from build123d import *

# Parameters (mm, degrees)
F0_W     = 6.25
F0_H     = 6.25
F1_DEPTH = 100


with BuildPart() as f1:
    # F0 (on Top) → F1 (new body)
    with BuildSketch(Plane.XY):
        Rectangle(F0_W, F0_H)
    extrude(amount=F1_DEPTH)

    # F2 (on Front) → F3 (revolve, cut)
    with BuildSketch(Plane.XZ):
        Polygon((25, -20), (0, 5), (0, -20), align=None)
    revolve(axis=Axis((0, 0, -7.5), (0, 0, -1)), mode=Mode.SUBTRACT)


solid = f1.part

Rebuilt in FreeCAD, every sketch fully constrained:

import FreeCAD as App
import Part
import Sketcher

V = App.Vector

doc = App.newDocument("Part")
body = doc.addObject("PartDesign::Body", "Body")

sketch1 = body.newObject("Sketcher::SketchObject", "Sketch")
sketch1.AttachmentSupport = (doc.getObject("XY_Plane"), [""])
sketch1.MapMode = "FlatFace"
sketch1.addGeometry([
    Part.LineSegment(V(-3, 3, 0), V(-3, -3, 0)),
    Part.LineSegment(V(-3, -3, 0), V(3, -3, 0)),
    Part.LineSegment(V(3, -3, 0), V(3, 3, 0)),
    Part.LineSegment(V(3, 3, 0), V(-3, 3, 0)),
], False)
sketch1.addConstraint([
    Sketcher.Constraint("Coincident", 0, 2, 1, 1),
    Sketcher.Constraint("Coincident", 1, 2, 2, 1),
    Sketcher.Constraint("Coincident", 2, 2, 3, 1),
    Sketcher.Constraint("Coincident", 3, 2, 0, 1),
    Sketcher.Constraint("Vertical", 0),
    Sketcher.Constraint("Horizontal", 1),
    Sketcher.Constraint("Vertical", 2),
    Sketcher.Constraint("Horizontal", 3),
    Sketcher.Constraint("Symmetric", 0, 2, 2, 2, -1, 1),
    Sketcher.Constraint("Equal", 3, 0),
    Sketcher.Constraint("DistanceX", 1, 1, 1, 2, 6.25),
])
pad1 = body.newObject("PartDesign::Pad", "Pad")
pad1.Profile = sketch1
pad1.Length = 100

sketch2 = body.newObject("Sketcher::SketchObject", "Sketch001")
sketch2.AttachmentSupport = (doc.getObject("XZ_Plane"), [""])
sketch2.MapMode = "FlatFace"
sketch2.addGeometry([
    Part.LineSegment(V(25, -20, 0), V(0, 5, 0)),
    Part.LineSegment(V(0, 5, 0), V(0, -20, 0)),
    Part.LineSegment(V(0, -20, 0), V(25, -20, 0)),
], False)
sketch2.addConstraint([
    Sketcher.Constraint("Coincident", 0, 2, 1, 1),
    Sketcher.Constraint("Coincident", 1, 2, 2, 1),
    Sketcher.Constraint("Coincident", 2, 2, 0, 1),
    Sketcher.Constraint("Vertical", 1),
    Sketcher.Constraint("Horizontal", 2),
    Sketcher.Constraint("PointOnObject", 0, 2, -2),
    Sketcher.Constraint("Equal", 2, 1),
    Sketcher.Constraint("DistanceX", 2, 1, 2, 2, 25.0),
    Sketcher.Constraint("DistanceY", -1, 1, 0, 2, 5.0),
])
groove = body.newObject("PartDesign::Groove", "Groove")
groove.Profile = sketch2
groove.ReferenceAxis = (sketch2, ["V_Axis"])
groove.Angle = 360

doc.recompute()
